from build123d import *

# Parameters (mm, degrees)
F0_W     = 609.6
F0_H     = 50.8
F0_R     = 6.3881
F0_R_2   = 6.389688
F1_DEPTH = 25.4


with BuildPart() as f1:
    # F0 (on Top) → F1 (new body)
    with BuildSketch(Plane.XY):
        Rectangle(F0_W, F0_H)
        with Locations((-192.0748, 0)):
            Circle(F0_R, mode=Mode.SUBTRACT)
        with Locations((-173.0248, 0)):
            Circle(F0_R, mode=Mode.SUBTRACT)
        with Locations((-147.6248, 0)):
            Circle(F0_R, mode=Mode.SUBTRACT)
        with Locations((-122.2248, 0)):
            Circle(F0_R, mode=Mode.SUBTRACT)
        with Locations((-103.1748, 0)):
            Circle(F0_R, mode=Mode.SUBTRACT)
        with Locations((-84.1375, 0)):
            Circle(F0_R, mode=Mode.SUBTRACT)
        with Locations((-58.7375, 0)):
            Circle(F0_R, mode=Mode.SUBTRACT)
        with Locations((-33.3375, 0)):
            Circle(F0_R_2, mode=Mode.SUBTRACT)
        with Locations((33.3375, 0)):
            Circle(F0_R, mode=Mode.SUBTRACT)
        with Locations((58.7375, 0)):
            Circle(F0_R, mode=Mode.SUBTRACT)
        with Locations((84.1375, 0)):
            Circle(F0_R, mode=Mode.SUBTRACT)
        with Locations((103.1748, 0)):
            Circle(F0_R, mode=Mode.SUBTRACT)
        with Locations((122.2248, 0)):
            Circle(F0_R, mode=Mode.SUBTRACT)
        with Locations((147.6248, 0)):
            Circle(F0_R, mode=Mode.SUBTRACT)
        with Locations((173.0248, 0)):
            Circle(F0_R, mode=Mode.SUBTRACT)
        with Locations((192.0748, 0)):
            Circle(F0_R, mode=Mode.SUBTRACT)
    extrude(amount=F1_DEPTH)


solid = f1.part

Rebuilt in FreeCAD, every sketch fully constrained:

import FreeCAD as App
import Part
import Sketcher
Q = App.Units.Quantity


def add_polygon(sketch, points):
    """Adds a closed chain of lines whose ends are joined by coincident constraints."""
    first, n = sketch.GeometryCount, len(points)
    for a, b in zip(points, points[1:] + points[:1]):
        sketch.addGeometry(Part.LineSegment(App.Vector(*a, 0), App.Vector(*b, 0)), False)
    for i in range(n):
        sketch.addConstraint(Sketcher.Constraint("Coincident", first + i, 2, first + (i + 1) % n, 1))

doc = App.newDocument("Part")
body = doc.addObject("PartDesign::Body", "Body")

# Sketch on XY plane
sketch1 = body.newObject("Sketcher::SketchObject", "Sketch")
sketch1.AttachmentSupport = (doc.getObject("XY_Plane"), [""])
sketch1.MapMode = "FlatFace"
add_polygon(sketch1, [(-304.8, 25.4), (-304.8, -25.4), (304.8, -25.4), (304.8, 25.4)])  # lines 0-3
sketch1.addGeometry(Part.Circle(App.Vector(-192.0748, 0, 0), App.Vector(0, 0, 1), 6.3881), False)  # 4
sketch1.addGeometry(Part.Circle(App.Vector(-173.0248, 0, 0), App.Vector(0, 0, 1), 6.3881), False)  # 5
sketch1.addGeometry(Part.Circle(App.Vector(-147.6248, 0, 0), App.Vector(0, 0, 1), 6.3881), False)  # 6
sketch1.addGeometry(Part.Circle(App.Vector(-122.2248, 0, 0), App.Vector(0, 0, 1), 6.3881), False)  # 7
sketch1.addGeometry(Part.Circle(App.Vector(-103.1748, 0, 0), App.Vector(0, 0, 1), 6.3881), False)  # 8
sketch1.addGeometry(Part.Circle(App.Vector(-84.1375, 0, 0), App.Vector(0, 0, 1), 6.3881), False)  # 9
sketch1.addGeometry(Part.Circle(App.Vector(-58.7375, 0, 0), App.Vector(0, 0, 1), 6.3881), False)  # 10
sketch1.addGeometry(Part.Circle(App.Vector(-33.3375, 0, 0), App.Vector(0, 0, 1), 6.389688), False)  # 11
sketch1.addGeometry(Part.Circle(App.Vector(33.3375, 0, 0), App.Vector(0, 0, 1), 6.3881), False)  # 12
sketch1.addGeometry(Part.Circle(App.Vector(58.7375, 0, 0), App.Vector(0, 0, 1), 6.3881), False)  # 13
sketch1.addGeometry(Part.Circle(App.Vector(84.1375, 0, 0), App.Vector(0, 0, 1), 6.3881), False)  # 14
sketch1.addGeometry(Part.Circle(App.Vector(103.1748, 0, 0), App.Vector(0, 0, 1), 6.3881), False)  # 15
sketch1.addGeometry(Part.Circle(App.Vector(122.2248, 0, 0), App.Vector(0, 0, 1), 6.3881), False)  # 16
sketch1.addGeometry(Part.Circle(App.Vector(147.6248, 0, 0), App.Vector(0, 0, 1), 6.3881), False)  # 17
sketch1.addGeometry(Part.Circle(App.Vector(173.0248, 0, 0), App.Vector(0, 0, 1), 6.3881), False)  # 18
sketch1.addGeometry(Part.Circle(App.Vector(192.0748, 0, 0), App.Vector(0, 0, 1), 6.3881), False)  # 19
sketch1.addConstraint(Sketcher.Constraint("Vertical", 0))
sketch1.addConstraint(Sketcher.Constraint("Horizontal", 1))
sketch1.addConstraint(Sketcher.Constraint("Vertical", 2))
sketch1.addConstraint(Sketcher.Constraint("Horizontal", 3))
sketch1.addConstraint(Sketcher.Constraint("Equal", 4, 5))
sketch1.addConstraint(Sketcher.Constraint("Equal", 5, 6))
sketch1.addConstraint(Sketcher.Constraint("Equal", 6, 7))
sketch1.addConstraint(Sketcher.Constraint("Equal", 7, 8))
sketch1.addConstraint(Sketcher.Constraint("Equal", 8, 9))
sketch1.addConstraint(Sketcher.Constraint("Equal", 9, 10))
sketch1.addConstraint(Sketcher.Constraint("Equal", 10, 12))
sketch1.addConstraint(Sketcher.Constraint("Equal", 12, 13))
sketch1.addConstraint(Sketcher.Constraint("Equal", 13, 14))
sketch1.addConstraint(Sketcher.Constraint("Equal", 14, 15))
sketch1.addConstraint(Sketcher.Constraint("Equal", 15, 16))
sketch1.addConstraint(Sketcher.Constraint("Equal", 16, 17))
sketch1.addConstraint(Sketcher.Constraint("Equal", 17, 18))
sketch1.addConstraint(Sketcher.Constraint("Equal", 18, 19))
sketch1.addConstraint(Sketcher.Constraint("Symmetric", 11, 3, 12, 3, -1, 1))
sketch1.addConstraint(Sketcher.Constraint("Symmetric", 10, 3, 13, 3, -1, 1))
sketch1.addConstraint(Sketcher.Constraint("Symmetric", 9, 3, 14, 3, -1, 1))
sketch1.addConstraint(Sketcher.Constraint("Symmetric", 8, 3, 15, 3, -1, 1))
sketch1.addConstraint(Sketcher.Constraint("Symmetric", 7, 3, 16, 3, -1, 1))
sketch1.addConstraint(Sketcher.Constraint("Symmetric", 6, 3, 17, 3, -1, 1))
sketch1.addConstraint(Sketcher.Constraint("Symmetric", 5, 3, 18, 3, -1, 1))
sketch1.addConstraint(Sketcher.Constraint("Symmetric", 4, 3, 19, 3, -1, 1))
sketch1.addConstraint(Sketcher.Constraint("Symmetric", 0, 2, 2, 2, -1, 1))
sketch1.addConstraint(Sketcher.Constraint("PointOnObject", 4, 3, -1))
sketch1.addConstraint(Sketcher.Constraint("PointOnObject", 5, 3, -1))
sketch1.addConstraint(Sketcher.Constraint("PointOnObject", 6, 3, -1))
sketch1.addConstraint(Sketcher.Constraint("PointOnObject", 7, 3, -1))
sketch1.addConstraint(Sketcher.Constraint("PointOnObject", 8, 3, -1))
sketch1.addConstraint(Sketcher.Constraint("PointOnObject", 9, 3, -1))
sketch1.addConstraint(Sketcher.Constraint("PointOnObject", 10, 3, -1))
sketch1.addConstraint(Sketcher.Constraint("PointOnObject", 11, 3, -1))
sketch1.addConstraint(Sketcher.Constraint("DistanceX", 1, 1, 1, 2, Q("24 in")))
sketch1.addConstraint(Sketcher.Constraint("DistanceY", 0, 2, 0, 1, Q("2 in")))
sketch1.addConstraint(Sketcher.Constraint("Diameter", 4, Q("0.503 in")))
sketch1.addConstraint(Sketcher.Constraint("DistanceX", 5, 3, 6, 3, Q("1 in")))
sketch1.addConstraint(Sketcher.Constraint("DistanceX", 6, 3, 7, 3, Q("1 in")))
sketch1.addConstraint(Sketcher.Constraint("DistanceX", 9, 3, 10, 3, Q("1 in")))
sketch1.addConstraint(Sketcher.Constraint("DistanceX", 10, 3, 11, 3, Q("1 in")))
sketch1.addConstraint(Sketcher.Constraint("DistanceX", 4, 3, 8, 3, Q("3.5 in")))
sketch1.addConstraint(Sketcher.Constraint("DistanceX", 4, 3, 5, 3, Q("0.75 in")))
sketch1.addConstraint(Sketcher.Constraint("DistanceX", 4, 3, -1, 1, Q("7.562 in")))
sketch1.addConstraint(Sketcher.Constraint("DistanceX", 9, 3, -1, 1, Q("3.3125 in")))
sketch1.addConstraint(Sketcher.Constraint("Diameter", 11, Q("12.779376 mm")))
pad1 = body.newObject("PartDesign::Pad", "Pad")
pad1.Profile = sketch1
pad1.Length = Q("1 in")

doc.recompute()
